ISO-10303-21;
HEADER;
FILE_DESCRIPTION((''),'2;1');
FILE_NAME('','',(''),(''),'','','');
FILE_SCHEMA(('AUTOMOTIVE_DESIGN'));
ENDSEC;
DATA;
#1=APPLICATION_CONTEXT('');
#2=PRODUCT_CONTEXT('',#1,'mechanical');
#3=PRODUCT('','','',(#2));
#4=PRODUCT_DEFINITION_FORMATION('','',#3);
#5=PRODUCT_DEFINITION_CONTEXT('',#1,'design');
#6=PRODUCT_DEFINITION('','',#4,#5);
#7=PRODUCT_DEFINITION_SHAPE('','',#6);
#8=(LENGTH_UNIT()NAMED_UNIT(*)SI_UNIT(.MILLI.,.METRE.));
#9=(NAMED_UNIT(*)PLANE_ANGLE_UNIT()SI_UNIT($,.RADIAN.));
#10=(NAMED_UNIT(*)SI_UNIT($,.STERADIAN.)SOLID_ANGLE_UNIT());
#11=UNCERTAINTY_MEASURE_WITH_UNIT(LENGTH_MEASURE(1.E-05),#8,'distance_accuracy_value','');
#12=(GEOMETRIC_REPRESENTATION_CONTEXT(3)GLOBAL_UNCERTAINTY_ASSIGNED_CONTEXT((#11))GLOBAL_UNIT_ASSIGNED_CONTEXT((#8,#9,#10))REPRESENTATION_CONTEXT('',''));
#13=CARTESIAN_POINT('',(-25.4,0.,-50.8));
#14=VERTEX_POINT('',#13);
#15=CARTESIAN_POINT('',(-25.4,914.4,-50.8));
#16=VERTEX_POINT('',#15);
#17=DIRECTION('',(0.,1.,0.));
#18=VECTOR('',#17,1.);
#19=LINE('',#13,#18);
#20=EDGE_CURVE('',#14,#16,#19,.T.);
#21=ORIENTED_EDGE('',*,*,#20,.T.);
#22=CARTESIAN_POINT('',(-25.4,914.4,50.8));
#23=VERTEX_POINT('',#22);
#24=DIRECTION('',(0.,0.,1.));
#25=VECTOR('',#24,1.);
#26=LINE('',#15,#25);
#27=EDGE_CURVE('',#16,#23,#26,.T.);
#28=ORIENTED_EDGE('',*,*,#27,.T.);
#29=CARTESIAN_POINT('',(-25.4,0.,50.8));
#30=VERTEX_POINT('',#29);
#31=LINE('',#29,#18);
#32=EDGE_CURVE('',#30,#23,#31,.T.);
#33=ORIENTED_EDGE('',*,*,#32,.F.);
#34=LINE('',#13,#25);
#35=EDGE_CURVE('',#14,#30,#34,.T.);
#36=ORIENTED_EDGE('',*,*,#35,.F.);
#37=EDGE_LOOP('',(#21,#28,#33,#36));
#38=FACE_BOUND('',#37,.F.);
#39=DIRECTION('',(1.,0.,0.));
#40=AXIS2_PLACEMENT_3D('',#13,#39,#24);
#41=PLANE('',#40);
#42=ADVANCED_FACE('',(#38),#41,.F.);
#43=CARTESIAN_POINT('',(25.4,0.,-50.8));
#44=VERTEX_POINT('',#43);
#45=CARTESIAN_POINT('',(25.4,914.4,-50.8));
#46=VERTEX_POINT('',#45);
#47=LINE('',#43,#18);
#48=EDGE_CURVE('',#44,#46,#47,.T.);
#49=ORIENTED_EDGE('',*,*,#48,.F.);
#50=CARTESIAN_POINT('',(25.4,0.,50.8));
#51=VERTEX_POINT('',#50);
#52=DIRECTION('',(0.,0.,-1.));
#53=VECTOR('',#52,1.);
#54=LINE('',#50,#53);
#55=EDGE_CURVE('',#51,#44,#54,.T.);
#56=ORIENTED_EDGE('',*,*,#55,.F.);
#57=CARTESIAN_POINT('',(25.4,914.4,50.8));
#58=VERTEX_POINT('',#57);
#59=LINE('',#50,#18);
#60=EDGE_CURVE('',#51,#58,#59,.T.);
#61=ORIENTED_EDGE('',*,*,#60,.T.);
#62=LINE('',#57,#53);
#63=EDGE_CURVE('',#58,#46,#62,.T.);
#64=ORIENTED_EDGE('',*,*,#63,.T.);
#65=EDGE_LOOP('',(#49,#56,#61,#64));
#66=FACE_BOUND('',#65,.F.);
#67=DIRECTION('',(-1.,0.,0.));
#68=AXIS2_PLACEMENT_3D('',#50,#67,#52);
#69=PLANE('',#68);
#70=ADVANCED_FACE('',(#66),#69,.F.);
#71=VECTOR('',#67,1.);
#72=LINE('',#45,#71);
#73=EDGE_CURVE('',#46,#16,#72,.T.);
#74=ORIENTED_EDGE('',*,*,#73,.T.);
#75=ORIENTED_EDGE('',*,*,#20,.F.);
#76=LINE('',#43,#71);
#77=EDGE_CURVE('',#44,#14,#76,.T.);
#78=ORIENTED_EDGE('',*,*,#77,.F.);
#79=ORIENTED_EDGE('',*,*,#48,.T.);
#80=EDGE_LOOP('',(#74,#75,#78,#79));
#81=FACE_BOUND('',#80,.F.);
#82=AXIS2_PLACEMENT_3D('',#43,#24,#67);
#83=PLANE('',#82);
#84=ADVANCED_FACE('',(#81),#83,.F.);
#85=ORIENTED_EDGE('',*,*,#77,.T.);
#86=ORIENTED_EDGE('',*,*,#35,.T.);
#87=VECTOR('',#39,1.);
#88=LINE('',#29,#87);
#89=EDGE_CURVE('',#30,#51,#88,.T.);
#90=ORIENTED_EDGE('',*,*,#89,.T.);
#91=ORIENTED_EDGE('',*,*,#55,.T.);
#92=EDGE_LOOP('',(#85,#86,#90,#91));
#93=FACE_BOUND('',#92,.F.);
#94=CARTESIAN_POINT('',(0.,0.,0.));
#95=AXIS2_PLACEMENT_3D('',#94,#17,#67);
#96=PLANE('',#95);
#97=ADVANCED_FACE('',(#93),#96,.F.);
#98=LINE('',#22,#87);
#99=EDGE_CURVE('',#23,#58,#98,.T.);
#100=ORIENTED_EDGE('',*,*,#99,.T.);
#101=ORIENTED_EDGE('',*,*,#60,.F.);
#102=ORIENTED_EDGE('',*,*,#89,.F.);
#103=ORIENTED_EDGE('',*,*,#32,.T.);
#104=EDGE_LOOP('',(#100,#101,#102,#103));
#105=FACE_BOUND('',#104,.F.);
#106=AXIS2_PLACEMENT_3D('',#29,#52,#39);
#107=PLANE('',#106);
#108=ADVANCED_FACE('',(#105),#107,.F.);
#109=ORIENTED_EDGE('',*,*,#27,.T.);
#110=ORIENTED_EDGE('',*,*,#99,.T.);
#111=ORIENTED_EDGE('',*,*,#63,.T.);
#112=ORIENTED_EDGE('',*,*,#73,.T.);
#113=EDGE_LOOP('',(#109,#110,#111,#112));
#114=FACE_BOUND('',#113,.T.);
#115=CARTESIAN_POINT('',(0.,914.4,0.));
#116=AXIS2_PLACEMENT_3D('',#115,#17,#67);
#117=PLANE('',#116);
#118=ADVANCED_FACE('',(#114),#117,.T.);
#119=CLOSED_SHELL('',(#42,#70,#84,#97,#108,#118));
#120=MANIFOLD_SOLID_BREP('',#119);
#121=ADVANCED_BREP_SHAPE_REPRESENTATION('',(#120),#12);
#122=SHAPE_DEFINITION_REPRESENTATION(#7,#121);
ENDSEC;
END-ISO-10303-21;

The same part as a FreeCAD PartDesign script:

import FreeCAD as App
import Part
import Sketcher
from FreeCAD import Vector
Q = App.Units.Quantity

doc = App.newDocument("Part")
params = doc.addObject("Spreadsheet::Sheet", "Params")
for row, (alias, value) in enumerate([
    ("sketch1_width", "2 in"),
    ("sketch1_height", "4 in"),
    ("pad1_length", "36 in"),
], start=1):
    params.set(f"A{row}", alias)
    params.set(f"B{row}", "=" + value)
    params.setAlias(f"B{row}", alias)

body = doc.addObject("PartDesign::Body", "Body")

sketch1 = body.newObject("Sketcher::SketchObject", "Sketch")
sketch1.AttachmentSupport = (doc.getObject("XZ_Plane"), [""])
sketch1.MapMode = "FlatFace"
sketch1.addGeometry([
    Part.LineSegment(Vector(25, 51, 0), Vector(25, -51, 0)),
    Part.LineSegment(Vector(25, -51, 0), Vector(-25, -51, 0)),
    Part.LineSegment(Vector(-25, -51, 0), Vector(-25, 51, 0)),
    Part.LineSegment(Vector(-25, 51, 0), Vector(25, 51, 0)),
], False)
sketch1.addConstraint([
    Sketcher.Constraint("Coincident", 0, 2, 1, 1),
    Sketcher.Constraint("Coincident", 1, 2, 2, 1),
    Sketcher.Constraint("Coincident", 2, 2, 3, 1),
    Sketcher.Constraint("Coincident", 3, 2, 0, 1),
    Sketcher.Constraint("Vertical", 0),
    Sketcher.Constraint("Horizontal", 1),
    Sketcher.Constraint("Vertical", 2),
    Sketcher.Constraint("Horizontal", 3),
    Sketcher.Constraint("Symmetric", 0, 2, 2, 2, -1, 1),
    Sketcher.Constraint("DistanceX", 1, 2, 1, 1, Q("2 in")),
    Sketcher.Constraint("DistanceY", 0, 2, 0, 1, Q("4 in")),
])
sketch1.setExpression("Constraints[9]", "Params.sketch1_width")
sketch1.setExpression("Constraints[10]", "Params.sketch1_height")
pad1 = body.newObject("PartDesign::Pad", "Pad")
pad1.Profile = sketch1
pad1.setExpression("Length", "Params.pad1_length")
pad1.Reversed = True

doc.recompute()
